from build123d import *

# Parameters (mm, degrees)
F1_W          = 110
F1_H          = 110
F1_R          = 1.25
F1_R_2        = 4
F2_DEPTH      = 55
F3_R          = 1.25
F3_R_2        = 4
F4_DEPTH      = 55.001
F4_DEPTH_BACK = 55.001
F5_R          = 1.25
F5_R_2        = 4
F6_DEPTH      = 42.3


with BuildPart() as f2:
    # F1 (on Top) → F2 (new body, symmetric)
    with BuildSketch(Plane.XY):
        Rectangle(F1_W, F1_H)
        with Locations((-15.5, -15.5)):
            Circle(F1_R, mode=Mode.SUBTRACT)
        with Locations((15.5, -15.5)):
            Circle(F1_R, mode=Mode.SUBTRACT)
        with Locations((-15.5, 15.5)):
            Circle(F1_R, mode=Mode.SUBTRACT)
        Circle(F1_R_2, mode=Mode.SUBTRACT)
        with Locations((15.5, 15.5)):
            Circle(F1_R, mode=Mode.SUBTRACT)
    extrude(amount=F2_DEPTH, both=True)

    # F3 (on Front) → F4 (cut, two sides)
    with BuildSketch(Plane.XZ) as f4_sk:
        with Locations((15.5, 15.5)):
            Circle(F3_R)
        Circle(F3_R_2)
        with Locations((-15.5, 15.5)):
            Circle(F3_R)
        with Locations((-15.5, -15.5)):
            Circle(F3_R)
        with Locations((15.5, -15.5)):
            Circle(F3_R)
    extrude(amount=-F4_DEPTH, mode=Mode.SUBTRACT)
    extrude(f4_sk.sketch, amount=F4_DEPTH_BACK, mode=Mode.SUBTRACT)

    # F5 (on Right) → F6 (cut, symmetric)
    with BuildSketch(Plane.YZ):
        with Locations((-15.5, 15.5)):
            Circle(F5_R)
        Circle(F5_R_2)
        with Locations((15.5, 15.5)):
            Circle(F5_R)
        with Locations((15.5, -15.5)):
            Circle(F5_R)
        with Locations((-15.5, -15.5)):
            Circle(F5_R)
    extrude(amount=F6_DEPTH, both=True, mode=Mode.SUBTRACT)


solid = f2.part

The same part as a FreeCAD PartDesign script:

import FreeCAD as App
import Part
import Sketcher

V = App.Vector


def add_polygon(sketch, points):
    """Adds a closed chain of lines whose ends are joined by coincident constraints."""
    first, n = sketch.GeometryCount, len(points)
    for a, b in zip(points, points[1:] + points[:1]):
        sketch.addGeometry(Part.LineSegment(App.Vector(*a, 0), App.Vector(*b, 0)), False)
    for i in range(n):
        sketch.addConstraint(Sketcher.Constraint("Coincident", first + i, 2, first + (i + 1) % n, 1))

doc = App.newDocument("Part")
body = doc.addObject("PartDesign::Body", "Body")

# Sketch on XY plane
sketch1 = body.newObject("Sketcher::SketchObject", "Sketch")
sketch1.AttachmentSupport = (doc.getObject("XY_Plane"), [""])
sketch1.MapMode = "FlatFace"
add_polygon(sketch1, [(-55, 55), (-55, -55), (55, -55), (55, 55)])  # lines 0-3
sketch1.addGeometry(Part.Circle(V(-15.5, -15.5, 0), V(0, 0, 1), 1.25), False)  # 4
sketch1.addGeometry(Part.Circle(V(15.5, -15.5, 0), V(0, 0, 1), 1.25), False)  # 5
sketch1.addGeometry(Part.Circle(V(-15.5, 15.5, 0), V(0, 0, 1), 1.25), False)  # 6
sketch1.addGeometry(Part.Circle(V(0, 0, 0), V(0, 0, 1), 4), False)  # 7
sketch1.addGeometry(Part.Circle(V(15.5, 15.5, 0), V(0, 0, 1), 1.25), False)  # 8
sketch1.addConstraint(Sketcher.Constraint("Vertical", 0))
sketch1.addConstraint(Sketcher.Constraint("Horizontal", 1))
sketch1.addConstraint(Sketcher.Constraint("Vertical", 2))
sketch1.addConstraint(Sketcher.Constraint("Horizontal", 3))
sketch1.addConstraint(Sketcher.Constraint("Coincident", 7, 3, -1, 1))
sketch1.addConstraint(Sketcher.Constraint("Equal", 4, 5))
sketch1.addConstraint(Sketcher.Constraint("Equal", 5, 6))
sketch1.addConstraint(Sketcher.Constraint("Equal", 6, 8))
sketch1.addConstraint(Sketcher.Constraint("Symmetric", 5, 3, 6, 3, -1, 1))
sketch1.addConstraint(Sketcher.Constraint("Symmetric", 4, 3, 8, 3, -1, 1))
sketch1.addConstraint(Sketcher.Constraint("Symmetric", 0, 2, 2, 2, -1, 1))
sketch1.addConstraint(Sketcher.Constraint("Symmetric", 4, 3, 5, 3, -2))
sketch1.addConstraint(Sketcher.Constraint("Equal", 3, 0))
sketch1.addConstraint(Sketcher.Constraint("Diameter", 7, 8.0))
sketch1.addConstraint(Sketcher.Constraint("Diameter", 4, 2.5))
sketch1.addConstraint(Sketcher.Constraint("DistanceX", 1, 1, 1, 2, 110.0))
sketch1.addConstraint(Sketcher.Constraint("DistanceX", 4, 3, 5, 3, 31.0))
sketch1.addConstraint(Sketcher.Constraint("DistanceY", 4, 3, 6, 3, 31.0))
pad1 = body.newObject("PartDesign::Pad", "Pad")
pad1.Profile = sketch1
pad1.Length = 110
pad1.Midplane = True

# Sketch on XZ plane
sketch2 = body.newObject("Sketcher::SketchObject", "Sketch001")
sketch2.AttachmentSupport = (doc.getObject("XZ_Plane"), [""])
sketch2.MapMode = "FlatFace"
sketch2.addGeometry(Part.Circle(V(15.5, 15.5, 0), V(0, 0, 1), 1.25), False)
sketch2.addGeometry(Part.Circle(V(0, 0, 0), V(0, 0, 1), 4), False)
sketch2.addGeometry(Part.Circle(V(-15.5, 15.5, 0), V(0, 0, 1), 1.25), False)
sketch2.addGeometry(Part.Circle(V(-15.5, -15.5, 0), V(0, 0, 1), 1.25), False)
sketch2.addGeometry(Part.Circle(V(15.5, -15.5, 0), V(0, 0, 1), 1.25), False)
sketch2.addConstraint(Sketcher.Constraint("Coincident", 1, 3, -1, 1))
sketch2.addConstraint(Sketcher.Constraint("Equal", 0, 2))
sketch2.addConstraint(Sketcher.Constraint("Equal", 2, 3))
sketch2.addConstraint(Sketcher.Constraint("Equal", 3, 4))
sketch2.addConstraint(Sketcher.Constraint("Symmetric", 0, 3, 3, 3, -1, 1))
sketch2.addConstraint(Sketcher.Constraint("Symmetric", 2, 3, 4, 3, -1, 1))
sketch2.addConstraint(Sketcher.Constraint("Symmetric", 0, 3, 2, 3, -2))
sketch2.addConstraint(Sketcher.Constraint("Diameter", 1, 8.0))
sketch2.addConstraint(Sketcher.Constraint("Diameter", 0, 2.5))
sketch2.addConstraint(Sketcher.Constraint("DistanceX", 2, 3, 0, 3, 31.0))
sketch2.addConstraint(Sketcher.Constraint("DistanceY", 3, 3, 2, 3, 31.0))
pocket1 = body.newObject("PartDesign::Pocket", "Pocket")
pocket1.Profile = sketch2
pocket1.Type = "ThroughAll"
pocket1.Midplane = True

# Sketch on YZ plane
sketch3 = body.newObject("Sketcher::SketchObject", "Sketch002")
sketch3.AttachmentSupport = (doc.getObject("YZ_Plane"), [""])
sketch3.MapMode = "FlatFace"
sketch3.addGeometry(Part.Circle(V(-15.5, 15.5, 0), V(0, 0, 1), 1.25), False)
sketch3.addGeometry(Part.Circle(V(0, 0, 0), V(0, 0, 1), 4), False)
sketch3.addGeometry(Part.Circle(V(15.5, 15.5, 0), V(0, 0, 1), 1.25), False)
sketch3.addGeometry(Part.Circle(V(15.5, -15.5, 0), V(0, 0, 1), 1.25), False)
sketch3.addGeometry(Part.Circle(V(-15.5, -15.5, 0), V(0, 0, 1), 1.25), False)
sketch3.addConstraint(Sketcher.Constraint("Coincident", 1, 3, -1, 1))
sketch3.addConstraint(Sketcher.Constraint("Equal", 0, 2))
sketch3.addConstraint(Sketcher.Constraint("Equal", 2, 3))
sketch3.addConstraint(Sketcher.Constraint("Equal", 3, 4))
sketch3.addConstraint(Sketcher.Constraint("Symmetric", 0, 3, 3, 3, -1, 1))
sketch3.addConstraint(Sketcher.Constraint("Symmetric", 2, 3, 4, 3, -1, 1))
sketch3.addConstraint(Sketcher.Constraint("Symmetric", 0, 3, 2, 3, -2))
sketch3.addConstraint(Sketcher.Constraint("Diameter", 1, 8.0))
sketch3.addConstraint(Sketcher.Constraint("Diameter", 0, 2.5))
sketch3.addConstraint(Sketcher.Constraint("DistanceX", 0, 3, 2, 3, 31.0))
sketch3.addConstraint(Sketcher.Constraint("DistanceY", 3, 3, 2, 3, 31.0))
pocket2 = body.newObject("PartDesign::Pocket", "Pocket001")
pocket2.Profile = sketch3
pocket2.Length = 84.6
pocket2.Midplane = True

doc.recompute()
